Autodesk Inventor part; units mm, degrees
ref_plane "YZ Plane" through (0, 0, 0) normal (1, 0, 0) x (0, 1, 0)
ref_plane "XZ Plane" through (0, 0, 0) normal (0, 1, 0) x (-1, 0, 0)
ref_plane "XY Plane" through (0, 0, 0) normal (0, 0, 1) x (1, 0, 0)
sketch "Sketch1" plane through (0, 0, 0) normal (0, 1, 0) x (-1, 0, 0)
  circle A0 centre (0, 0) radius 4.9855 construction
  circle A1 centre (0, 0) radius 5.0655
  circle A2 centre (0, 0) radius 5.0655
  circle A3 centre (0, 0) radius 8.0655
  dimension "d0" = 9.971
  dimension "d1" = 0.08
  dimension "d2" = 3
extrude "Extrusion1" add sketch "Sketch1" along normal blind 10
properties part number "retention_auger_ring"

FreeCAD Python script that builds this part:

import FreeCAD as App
import Part
import Sketcher

doc = App.newDocument("Part")
body = doc.addObject("PartDesign::Body", "Body")

# Sketch on XZ plane
sketch1 = body.newObject("Sketcher::SketchObject", "Sketch")
sketch1.AttachmentSupport = (doc.getObject("XZ_Plane"), [""])
sketch1.MapMode = "FlatFace"
sketch1.addGeometry([
    Part.Circle(App.Vector(0, 0, 0), App.Vector(0, 0, 1), 8),
    Part.Circle(App.Vector(0, 0, 0), App.Vector(0, 0, 1), 5),
], False)
sketch1.addConstraint([
    Sketcher.Constraint("Coincident", 0, 3, -1, 1),
    Sketcher.Constraint("Coincident", 1, 3, -1, 1),
    Sketcher.Constraint("Diameter", 0, 16.131),
    Sketcher.Constraint("Diameter", 1, 10.131),
])
pad1 = body.newObject("PartDesign::Pad", "Pad")
pad1.Profile = sketch1
pad1.Length = 10
pad1.Reversed = True

doc.recompute()
